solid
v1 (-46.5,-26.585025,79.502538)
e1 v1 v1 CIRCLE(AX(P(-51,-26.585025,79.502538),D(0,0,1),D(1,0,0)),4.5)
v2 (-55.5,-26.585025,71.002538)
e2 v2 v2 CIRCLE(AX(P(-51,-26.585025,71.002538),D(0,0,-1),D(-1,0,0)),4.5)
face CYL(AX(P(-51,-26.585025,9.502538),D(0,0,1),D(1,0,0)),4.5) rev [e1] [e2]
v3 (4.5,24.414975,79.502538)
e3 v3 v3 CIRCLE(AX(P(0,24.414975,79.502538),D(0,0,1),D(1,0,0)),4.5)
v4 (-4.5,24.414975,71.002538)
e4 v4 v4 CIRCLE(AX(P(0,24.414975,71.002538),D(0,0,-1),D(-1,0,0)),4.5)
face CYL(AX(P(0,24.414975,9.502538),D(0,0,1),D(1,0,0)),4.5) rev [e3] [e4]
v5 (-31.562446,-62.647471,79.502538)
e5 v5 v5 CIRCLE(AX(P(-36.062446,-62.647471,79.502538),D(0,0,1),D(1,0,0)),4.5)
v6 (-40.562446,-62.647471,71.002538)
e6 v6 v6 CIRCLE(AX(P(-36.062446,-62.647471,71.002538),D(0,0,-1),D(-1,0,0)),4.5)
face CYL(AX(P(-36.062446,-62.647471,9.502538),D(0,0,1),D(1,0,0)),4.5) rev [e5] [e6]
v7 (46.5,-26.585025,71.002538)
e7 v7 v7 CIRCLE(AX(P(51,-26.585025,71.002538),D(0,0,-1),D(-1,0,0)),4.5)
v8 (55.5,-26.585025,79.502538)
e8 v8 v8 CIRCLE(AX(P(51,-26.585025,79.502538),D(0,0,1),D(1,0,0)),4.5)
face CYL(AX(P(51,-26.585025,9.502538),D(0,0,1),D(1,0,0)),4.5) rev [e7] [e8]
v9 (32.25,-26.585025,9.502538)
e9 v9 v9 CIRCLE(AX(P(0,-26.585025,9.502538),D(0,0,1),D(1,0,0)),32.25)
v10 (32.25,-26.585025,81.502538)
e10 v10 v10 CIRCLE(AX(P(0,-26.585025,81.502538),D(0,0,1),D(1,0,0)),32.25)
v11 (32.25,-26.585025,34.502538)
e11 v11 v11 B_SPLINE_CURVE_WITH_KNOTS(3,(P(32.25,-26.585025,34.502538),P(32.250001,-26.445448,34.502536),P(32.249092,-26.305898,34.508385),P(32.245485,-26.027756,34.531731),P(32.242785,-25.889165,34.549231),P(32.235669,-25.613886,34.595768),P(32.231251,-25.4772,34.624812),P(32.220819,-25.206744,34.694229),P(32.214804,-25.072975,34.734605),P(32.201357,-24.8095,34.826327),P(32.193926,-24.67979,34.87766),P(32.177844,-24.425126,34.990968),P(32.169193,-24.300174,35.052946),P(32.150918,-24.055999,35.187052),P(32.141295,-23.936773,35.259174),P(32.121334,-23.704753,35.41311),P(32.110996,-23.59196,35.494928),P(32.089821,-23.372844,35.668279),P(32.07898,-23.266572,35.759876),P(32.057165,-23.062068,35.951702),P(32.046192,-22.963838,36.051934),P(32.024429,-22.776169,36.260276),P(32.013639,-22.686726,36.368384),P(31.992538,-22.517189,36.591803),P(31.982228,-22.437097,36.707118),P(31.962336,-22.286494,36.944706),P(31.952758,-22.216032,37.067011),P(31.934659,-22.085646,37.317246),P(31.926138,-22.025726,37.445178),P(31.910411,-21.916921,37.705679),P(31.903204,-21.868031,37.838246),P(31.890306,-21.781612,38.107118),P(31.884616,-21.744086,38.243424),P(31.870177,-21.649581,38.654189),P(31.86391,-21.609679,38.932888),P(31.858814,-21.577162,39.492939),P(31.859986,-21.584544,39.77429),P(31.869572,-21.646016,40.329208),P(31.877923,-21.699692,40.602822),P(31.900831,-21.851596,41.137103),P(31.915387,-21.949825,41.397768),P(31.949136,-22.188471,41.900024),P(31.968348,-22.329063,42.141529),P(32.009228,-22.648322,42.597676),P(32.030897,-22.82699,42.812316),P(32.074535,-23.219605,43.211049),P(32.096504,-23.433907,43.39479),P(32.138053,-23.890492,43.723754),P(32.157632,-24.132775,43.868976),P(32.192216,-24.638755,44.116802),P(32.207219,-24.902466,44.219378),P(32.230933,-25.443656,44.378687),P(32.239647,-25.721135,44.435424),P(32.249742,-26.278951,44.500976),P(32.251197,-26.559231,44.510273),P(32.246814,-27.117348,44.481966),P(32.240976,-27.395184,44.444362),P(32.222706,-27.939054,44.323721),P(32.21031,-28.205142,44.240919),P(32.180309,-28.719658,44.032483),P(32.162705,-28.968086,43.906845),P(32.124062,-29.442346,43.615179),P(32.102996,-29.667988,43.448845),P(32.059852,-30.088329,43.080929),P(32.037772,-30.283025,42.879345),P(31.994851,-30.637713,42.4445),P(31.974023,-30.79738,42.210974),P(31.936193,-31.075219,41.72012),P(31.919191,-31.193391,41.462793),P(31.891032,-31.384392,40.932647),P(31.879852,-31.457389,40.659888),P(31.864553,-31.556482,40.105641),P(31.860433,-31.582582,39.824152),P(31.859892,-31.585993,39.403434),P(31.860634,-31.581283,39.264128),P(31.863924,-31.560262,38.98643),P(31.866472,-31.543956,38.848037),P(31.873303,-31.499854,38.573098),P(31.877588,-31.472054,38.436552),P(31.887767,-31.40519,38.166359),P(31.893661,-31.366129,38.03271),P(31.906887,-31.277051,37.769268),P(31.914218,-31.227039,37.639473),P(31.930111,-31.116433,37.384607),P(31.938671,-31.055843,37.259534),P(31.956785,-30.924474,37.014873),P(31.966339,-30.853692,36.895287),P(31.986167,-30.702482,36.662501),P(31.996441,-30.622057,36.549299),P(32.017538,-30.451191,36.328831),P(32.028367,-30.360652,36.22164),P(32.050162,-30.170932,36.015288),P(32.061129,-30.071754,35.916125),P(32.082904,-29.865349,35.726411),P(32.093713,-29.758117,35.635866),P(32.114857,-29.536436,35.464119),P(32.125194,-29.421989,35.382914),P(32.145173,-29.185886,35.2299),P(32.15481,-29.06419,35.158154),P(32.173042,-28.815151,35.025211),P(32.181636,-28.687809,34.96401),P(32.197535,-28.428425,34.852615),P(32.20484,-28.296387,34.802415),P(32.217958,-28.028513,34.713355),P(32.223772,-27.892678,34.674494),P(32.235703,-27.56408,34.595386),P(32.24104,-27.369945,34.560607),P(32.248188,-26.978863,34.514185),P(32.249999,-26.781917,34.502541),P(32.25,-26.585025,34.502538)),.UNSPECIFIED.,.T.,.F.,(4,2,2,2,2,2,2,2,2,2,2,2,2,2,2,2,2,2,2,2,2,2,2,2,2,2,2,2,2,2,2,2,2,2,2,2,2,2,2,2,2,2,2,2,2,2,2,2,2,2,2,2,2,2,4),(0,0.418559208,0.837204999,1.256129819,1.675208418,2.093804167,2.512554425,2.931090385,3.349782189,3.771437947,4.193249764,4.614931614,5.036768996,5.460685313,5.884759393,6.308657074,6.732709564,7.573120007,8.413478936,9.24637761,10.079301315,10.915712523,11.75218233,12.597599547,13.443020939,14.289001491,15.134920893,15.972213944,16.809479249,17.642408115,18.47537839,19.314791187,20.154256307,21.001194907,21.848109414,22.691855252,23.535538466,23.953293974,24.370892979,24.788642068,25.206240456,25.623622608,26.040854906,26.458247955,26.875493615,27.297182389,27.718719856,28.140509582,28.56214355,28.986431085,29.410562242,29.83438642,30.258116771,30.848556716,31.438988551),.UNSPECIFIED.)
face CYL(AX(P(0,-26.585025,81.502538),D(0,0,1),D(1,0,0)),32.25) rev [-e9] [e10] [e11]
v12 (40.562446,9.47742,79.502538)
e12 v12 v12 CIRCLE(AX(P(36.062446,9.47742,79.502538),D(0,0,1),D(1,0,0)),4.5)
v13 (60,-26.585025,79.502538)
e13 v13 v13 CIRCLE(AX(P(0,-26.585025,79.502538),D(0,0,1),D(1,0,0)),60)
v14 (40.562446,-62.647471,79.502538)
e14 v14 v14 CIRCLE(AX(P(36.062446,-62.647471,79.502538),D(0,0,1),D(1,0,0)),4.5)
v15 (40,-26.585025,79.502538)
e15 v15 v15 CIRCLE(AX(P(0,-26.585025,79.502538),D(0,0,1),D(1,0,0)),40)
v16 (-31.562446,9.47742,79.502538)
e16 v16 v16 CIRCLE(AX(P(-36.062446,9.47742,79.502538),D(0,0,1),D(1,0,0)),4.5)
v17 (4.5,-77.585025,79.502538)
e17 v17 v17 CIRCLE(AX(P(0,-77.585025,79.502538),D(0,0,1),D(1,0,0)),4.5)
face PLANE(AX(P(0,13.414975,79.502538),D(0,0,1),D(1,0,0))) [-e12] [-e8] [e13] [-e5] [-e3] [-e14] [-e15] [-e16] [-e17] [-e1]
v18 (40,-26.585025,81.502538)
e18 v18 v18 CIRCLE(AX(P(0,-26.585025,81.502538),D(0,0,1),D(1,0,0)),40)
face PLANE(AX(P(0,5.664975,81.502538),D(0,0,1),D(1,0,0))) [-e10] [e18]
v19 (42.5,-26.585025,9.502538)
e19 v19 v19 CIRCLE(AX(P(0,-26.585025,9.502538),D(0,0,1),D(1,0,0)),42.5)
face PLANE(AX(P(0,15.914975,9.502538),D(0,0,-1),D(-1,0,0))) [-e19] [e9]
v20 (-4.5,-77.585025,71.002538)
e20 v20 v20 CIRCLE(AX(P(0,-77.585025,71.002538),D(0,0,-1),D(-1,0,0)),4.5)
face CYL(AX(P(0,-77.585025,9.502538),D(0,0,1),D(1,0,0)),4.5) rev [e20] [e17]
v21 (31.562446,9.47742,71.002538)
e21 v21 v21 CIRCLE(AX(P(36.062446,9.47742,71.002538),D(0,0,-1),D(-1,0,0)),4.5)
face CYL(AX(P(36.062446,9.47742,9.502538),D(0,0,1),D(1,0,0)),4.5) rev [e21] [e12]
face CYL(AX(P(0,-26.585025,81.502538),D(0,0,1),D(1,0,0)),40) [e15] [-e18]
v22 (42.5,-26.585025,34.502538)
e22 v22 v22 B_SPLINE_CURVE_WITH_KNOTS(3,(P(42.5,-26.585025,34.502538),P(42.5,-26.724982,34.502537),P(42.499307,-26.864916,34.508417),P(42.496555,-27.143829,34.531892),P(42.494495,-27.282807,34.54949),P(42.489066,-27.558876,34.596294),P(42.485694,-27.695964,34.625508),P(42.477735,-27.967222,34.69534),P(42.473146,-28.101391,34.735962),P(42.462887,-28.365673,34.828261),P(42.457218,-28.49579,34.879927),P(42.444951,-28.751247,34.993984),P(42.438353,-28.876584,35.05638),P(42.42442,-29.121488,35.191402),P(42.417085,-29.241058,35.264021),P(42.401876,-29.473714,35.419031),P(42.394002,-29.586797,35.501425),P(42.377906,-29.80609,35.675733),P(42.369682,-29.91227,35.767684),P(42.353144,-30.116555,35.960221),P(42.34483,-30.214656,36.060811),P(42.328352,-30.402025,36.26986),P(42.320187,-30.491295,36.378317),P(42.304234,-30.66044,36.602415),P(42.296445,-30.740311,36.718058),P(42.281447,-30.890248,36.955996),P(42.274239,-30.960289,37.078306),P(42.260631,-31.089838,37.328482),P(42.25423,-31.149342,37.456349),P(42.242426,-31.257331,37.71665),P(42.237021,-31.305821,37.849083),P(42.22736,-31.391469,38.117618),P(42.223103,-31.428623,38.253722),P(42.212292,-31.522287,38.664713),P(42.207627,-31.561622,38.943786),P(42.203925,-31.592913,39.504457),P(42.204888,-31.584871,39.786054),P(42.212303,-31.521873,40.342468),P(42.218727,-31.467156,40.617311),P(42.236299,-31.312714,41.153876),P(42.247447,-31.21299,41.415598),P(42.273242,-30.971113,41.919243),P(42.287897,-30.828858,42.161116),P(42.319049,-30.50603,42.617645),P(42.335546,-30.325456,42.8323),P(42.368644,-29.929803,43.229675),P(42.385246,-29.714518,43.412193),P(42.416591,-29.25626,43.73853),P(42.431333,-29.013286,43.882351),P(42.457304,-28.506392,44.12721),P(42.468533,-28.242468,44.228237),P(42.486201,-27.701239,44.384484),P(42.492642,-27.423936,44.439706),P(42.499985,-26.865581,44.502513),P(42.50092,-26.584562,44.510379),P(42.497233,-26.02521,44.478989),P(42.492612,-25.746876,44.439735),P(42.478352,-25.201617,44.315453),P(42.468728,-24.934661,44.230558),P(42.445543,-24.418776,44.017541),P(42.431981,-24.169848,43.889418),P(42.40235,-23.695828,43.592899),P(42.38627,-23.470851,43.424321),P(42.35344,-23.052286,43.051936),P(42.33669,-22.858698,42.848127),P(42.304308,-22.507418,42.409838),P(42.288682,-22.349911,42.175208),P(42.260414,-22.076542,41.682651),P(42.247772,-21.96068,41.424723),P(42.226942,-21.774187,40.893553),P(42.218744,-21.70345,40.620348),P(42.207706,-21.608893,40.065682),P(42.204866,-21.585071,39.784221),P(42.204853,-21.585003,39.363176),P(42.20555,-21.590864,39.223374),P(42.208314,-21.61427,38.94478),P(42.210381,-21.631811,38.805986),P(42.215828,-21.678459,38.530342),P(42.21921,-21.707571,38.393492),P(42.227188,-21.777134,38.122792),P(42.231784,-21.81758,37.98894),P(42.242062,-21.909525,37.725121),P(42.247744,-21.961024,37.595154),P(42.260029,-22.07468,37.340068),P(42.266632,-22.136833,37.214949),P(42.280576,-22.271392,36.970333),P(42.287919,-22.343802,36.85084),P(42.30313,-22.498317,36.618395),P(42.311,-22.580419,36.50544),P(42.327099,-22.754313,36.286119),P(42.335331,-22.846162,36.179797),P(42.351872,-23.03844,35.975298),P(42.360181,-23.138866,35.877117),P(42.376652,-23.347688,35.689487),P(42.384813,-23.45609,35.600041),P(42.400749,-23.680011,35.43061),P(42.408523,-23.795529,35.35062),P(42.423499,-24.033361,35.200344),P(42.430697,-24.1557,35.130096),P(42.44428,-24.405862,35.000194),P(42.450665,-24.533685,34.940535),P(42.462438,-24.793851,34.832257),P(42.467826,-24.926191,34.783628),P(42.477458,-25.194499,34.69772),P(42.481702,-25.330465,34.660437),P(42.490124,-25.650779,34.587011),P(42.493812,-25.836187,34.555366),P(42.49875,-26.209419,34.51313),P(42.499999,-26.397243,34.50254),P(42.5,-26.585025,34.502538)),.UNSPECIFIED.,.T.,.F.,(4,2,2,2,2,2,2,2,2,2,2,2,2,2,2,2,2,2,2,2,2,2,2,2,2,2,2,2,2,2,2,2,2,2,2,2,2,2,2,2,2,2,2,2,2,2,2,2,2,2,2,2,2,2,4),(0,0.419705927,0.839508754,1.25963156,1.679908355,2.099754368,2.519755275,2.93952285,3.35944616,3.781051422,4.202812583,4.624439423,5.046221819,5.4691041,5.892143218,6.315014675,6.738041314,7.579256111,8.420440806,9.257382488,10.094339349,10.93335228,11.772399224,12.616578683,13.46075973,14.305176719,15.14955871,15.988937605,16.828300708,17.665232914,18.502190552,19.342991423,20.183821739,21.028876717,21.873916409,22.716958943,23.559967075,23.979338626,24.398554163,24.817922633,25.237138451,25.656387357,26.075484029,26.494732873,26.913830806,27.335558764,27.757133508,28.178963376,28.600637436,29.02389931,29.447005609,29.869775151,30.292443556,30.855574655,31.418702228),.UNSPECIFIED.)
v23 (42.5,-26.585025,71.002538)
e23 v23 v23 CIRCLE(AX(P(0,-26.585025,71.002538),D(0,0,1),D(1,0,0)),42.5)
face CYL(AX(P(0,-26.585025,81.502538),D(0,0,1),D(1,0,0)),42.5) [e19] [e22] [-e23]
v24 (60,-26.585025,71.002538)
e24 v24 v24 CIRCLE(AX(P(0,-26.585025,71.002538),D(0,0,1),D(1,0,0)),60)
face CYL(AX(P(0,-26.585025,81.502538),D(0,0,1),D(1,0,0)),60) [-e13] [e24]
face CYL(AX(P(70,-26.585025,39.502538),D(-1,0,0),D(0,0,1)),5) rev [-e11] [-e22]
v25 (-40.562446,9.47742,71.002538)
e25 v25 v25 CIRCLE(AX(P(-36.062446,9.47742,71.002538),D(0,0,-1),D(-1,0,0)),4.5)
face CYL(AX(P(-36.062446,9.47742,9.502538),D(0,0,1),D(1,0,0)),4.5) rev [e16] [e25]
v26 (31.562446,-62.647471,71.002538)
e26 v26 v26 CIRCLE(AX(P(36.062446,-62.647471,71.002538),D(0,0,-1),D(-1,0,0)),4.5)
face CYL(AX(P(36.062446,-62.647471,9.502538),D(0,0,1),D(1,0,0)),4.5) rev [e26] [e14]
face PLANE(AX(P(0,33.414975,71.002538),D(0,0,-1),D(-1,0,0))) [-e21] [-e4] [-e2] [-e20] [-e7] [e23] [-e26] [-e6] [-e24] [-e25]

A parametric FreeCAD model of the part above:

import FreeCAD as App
import Part
import Sketcher
Q = App.Units.Quantity

doc = App.newDocument("Part")
body = doc.addObject("PartDesign::Body", "Body")

sketch1 = body.newObject("Sketcher::SketchObject", "Sketch")
sketch1.AttachmentSupport = (doc.getObject("YZ_Plane"), [""])
sketch1.MapMode = "FlatFace"
sketch1.addGeometry([
    Part.LineSegment(App.Vector(5.7, 81.5, 0), App.Vector(5.7, 9.5, 0)),
    Part.LineSegment(App.Vector(5.7, 9.5, 0), App.Vector(15.9, 9.5, 0)),
    Part.LineSegment(App.Vector(15.9, 9.5, 0), App.Vector(15.9, 71, 0)),
    Part.LineSegment(App.Vector(15.9, 71, 0), App.Vector(33.4, 71, 0)),
    Part.LineSegment(App.Vector(33.4, 71, 0), App.Vector(33.4, 79.5, 0)),
    Part.LineSegment(App.Vector(33.4, 79.5, 0), App.Vector(13.4, 79.5, 0)),
    Part.LineSegment(App.Vector(13.4, 79.5, 0), App.Vector(13.4, 81.5, 0)),
    Part.LineSegment(App.Vector(13.4, 81.5, 0), App.Vector(5.7, 81.5, 0)),
], False)
sketch1.addGeometry(Part.LineSegment(App.Vector(-26.6, 81.5, 0), App.Vector(-26.6, 9.5, 0)), True)
sketch1.addConstraint([
    Sketcher.Constraint("Coincident", 0, 2, 1, 1),
    Sketcher.Constraint("Coincident", 1, 2, 2, 1),
    Sketcher.Constraint("Coincident", 2, 2, 3, 1),
    Sketcher.Constraint("Coincident", 3, 2, 4, 1),
    Sketcher.Constraint("Coincident", 4, 2, 5, 1),
    Sketcher.Constraint("Coincident", 5, 2, 6, 1),
    Sketcher.Constraint("Coincident", 6, 2, 7, 1),
    Sketcher.Constraint("Coincident", 7, 2, 0, 1),
    Sketcher.Constraint("Vertical", 0),
    Sketcher.Constraint("Horizontal", 1),
    Sketcher.Constraint("Vertical", 2),
    Sketcher.Constraint("Horizontal", 3),
    Sketcher.Constraint("Vertical", 4),
    Sketcher.Constraint("Horizontal", 5),
    Sketcher.Constraint("Vertical", 6),
    Sketcher.Constraint("Horizontal", 7),
    Sketcher.Constraint("Vertical", 8),
    Sketcher.Constraint("Horizontal", 7, 2, 8, 1),
    Sketcher.Constraint("Horizontal", 1, 2, 8, 2),
    Sketcher.Constraint("DistanceX", 5, 2, 5, 1, Q("20 mm")),
    Sketcher.Constraint("DistanceY", 0, 2, 0, 1, Q("72 mm")),
    Sketcher.Constraint("DistanceY", 6, 1, 6, 2, Q("2 mm")),
    Sketcher.Constraint("DistanceX", 3, 1, 3, 2, Q("17.5 mm")),
    Sketcher.Constraint("DistanceY", 2, 1, 2, 2, Q("61.5 mm")),
    Sketcher.Constraint("DistanceX", 8, 1, 6, 2, Q("40 mm")),
    Sketcher.Constraint("DistanceX", 1, 1, 1, 2, Q("10.25 mm")),
    Sketcher.Constraint("DistanceY", -1, 1, 0, 2, Q("9.502538 mm")),
    Sketcher.Constraint("DistanceX", -1, 1, 0, 2, Q("5.664975 mm")),
])
revolution = body.newObject("PartDesign::Revolution", "Revolution")
revolution.Profile = sketch1
revolution.ReferenceAxis = (sketch1, ["Axis0"])
revolution.Angle = 360

sketch2 = body.newObject("Sketcher::SketchObject", "Sketch001")
sketch2.AttachmentSupport = (doc.getObject("XY_Plane"), [""])
sketch2.MapMode = "FlatFace"
sketch2.AttachmentOffset = App.Placement(App.Vector(0, 0, 79.502538), App.Rotation())
sketch2.addGeometry(Part.Circle(App.Vector(51, -26.6, 0), App.Vector(0, 0, 1), 4.5), False)
sketch2.addConstraint([
    Sketcher.Constraint("Diameter", 0, Q("9 mm")),
    Sketcher.Constraint("DistanceX", -1, 1, 0, 3, Q("51 mm")),
    Sketcher.Constraint("DistanceY", 0, 3, -1, 1, Q("26.585025 mm")),
])
pocket1 = body.newObject("PartDesign::Pocket", "Pocket")
pocket1.Profile = sketch2
pocket1.Length = 254.958231
pocket1.Midplane = True
doc.recompute()

datumline = body.newObject("PartDesign::Line", "DatumLine")
datumline.Placement = App.Placement(App.Vector(0, -26.585025, 0), App.Rotation(App.Vector(0, 0, 1), App.Vector(0, 0, 1)))
polarpattern = body.newObject("PartDesign::PolarPattern", "PolarPattern")
polarpattern.Originals = [pocket1]
polarpattern.Axis = (datumline, [""])
polarpattern.Angle = 360
polarpattern.Occurrences = 8
body.Tip = polarpattern

sketch3 = body.newObject("Sketcher::SketchObject", "Sketch002")
sketch3.AttachmentSupport = (doc.getObject("YZ_Plane"), [""])
sketch3.MapMode = "FlatFace"
sketch3.addGeometry(Part.Circle(App.Vector(-27, 40, 0), App.Vector(0, 0, 1), 5), False)
sketch3.addConstraint([
    Sketcher.Constraint("Diameter", 0, Q("10 mm")),
    Sketcher.Constraint("DistanceY", -1, 1, 0, 3, Q("39.502538 mm")),
    Sketcher.Constraint("DistanceX", 0, 3, -1, 1, Q("26.585025 mm")),
])
pocket2 = body.newObject("PartDesign::Pocket", "Pocket001")
pocket2.Profile = sketch3
pocket2.Length = 70
pocket2.Reversed = True

doc.recompute()
